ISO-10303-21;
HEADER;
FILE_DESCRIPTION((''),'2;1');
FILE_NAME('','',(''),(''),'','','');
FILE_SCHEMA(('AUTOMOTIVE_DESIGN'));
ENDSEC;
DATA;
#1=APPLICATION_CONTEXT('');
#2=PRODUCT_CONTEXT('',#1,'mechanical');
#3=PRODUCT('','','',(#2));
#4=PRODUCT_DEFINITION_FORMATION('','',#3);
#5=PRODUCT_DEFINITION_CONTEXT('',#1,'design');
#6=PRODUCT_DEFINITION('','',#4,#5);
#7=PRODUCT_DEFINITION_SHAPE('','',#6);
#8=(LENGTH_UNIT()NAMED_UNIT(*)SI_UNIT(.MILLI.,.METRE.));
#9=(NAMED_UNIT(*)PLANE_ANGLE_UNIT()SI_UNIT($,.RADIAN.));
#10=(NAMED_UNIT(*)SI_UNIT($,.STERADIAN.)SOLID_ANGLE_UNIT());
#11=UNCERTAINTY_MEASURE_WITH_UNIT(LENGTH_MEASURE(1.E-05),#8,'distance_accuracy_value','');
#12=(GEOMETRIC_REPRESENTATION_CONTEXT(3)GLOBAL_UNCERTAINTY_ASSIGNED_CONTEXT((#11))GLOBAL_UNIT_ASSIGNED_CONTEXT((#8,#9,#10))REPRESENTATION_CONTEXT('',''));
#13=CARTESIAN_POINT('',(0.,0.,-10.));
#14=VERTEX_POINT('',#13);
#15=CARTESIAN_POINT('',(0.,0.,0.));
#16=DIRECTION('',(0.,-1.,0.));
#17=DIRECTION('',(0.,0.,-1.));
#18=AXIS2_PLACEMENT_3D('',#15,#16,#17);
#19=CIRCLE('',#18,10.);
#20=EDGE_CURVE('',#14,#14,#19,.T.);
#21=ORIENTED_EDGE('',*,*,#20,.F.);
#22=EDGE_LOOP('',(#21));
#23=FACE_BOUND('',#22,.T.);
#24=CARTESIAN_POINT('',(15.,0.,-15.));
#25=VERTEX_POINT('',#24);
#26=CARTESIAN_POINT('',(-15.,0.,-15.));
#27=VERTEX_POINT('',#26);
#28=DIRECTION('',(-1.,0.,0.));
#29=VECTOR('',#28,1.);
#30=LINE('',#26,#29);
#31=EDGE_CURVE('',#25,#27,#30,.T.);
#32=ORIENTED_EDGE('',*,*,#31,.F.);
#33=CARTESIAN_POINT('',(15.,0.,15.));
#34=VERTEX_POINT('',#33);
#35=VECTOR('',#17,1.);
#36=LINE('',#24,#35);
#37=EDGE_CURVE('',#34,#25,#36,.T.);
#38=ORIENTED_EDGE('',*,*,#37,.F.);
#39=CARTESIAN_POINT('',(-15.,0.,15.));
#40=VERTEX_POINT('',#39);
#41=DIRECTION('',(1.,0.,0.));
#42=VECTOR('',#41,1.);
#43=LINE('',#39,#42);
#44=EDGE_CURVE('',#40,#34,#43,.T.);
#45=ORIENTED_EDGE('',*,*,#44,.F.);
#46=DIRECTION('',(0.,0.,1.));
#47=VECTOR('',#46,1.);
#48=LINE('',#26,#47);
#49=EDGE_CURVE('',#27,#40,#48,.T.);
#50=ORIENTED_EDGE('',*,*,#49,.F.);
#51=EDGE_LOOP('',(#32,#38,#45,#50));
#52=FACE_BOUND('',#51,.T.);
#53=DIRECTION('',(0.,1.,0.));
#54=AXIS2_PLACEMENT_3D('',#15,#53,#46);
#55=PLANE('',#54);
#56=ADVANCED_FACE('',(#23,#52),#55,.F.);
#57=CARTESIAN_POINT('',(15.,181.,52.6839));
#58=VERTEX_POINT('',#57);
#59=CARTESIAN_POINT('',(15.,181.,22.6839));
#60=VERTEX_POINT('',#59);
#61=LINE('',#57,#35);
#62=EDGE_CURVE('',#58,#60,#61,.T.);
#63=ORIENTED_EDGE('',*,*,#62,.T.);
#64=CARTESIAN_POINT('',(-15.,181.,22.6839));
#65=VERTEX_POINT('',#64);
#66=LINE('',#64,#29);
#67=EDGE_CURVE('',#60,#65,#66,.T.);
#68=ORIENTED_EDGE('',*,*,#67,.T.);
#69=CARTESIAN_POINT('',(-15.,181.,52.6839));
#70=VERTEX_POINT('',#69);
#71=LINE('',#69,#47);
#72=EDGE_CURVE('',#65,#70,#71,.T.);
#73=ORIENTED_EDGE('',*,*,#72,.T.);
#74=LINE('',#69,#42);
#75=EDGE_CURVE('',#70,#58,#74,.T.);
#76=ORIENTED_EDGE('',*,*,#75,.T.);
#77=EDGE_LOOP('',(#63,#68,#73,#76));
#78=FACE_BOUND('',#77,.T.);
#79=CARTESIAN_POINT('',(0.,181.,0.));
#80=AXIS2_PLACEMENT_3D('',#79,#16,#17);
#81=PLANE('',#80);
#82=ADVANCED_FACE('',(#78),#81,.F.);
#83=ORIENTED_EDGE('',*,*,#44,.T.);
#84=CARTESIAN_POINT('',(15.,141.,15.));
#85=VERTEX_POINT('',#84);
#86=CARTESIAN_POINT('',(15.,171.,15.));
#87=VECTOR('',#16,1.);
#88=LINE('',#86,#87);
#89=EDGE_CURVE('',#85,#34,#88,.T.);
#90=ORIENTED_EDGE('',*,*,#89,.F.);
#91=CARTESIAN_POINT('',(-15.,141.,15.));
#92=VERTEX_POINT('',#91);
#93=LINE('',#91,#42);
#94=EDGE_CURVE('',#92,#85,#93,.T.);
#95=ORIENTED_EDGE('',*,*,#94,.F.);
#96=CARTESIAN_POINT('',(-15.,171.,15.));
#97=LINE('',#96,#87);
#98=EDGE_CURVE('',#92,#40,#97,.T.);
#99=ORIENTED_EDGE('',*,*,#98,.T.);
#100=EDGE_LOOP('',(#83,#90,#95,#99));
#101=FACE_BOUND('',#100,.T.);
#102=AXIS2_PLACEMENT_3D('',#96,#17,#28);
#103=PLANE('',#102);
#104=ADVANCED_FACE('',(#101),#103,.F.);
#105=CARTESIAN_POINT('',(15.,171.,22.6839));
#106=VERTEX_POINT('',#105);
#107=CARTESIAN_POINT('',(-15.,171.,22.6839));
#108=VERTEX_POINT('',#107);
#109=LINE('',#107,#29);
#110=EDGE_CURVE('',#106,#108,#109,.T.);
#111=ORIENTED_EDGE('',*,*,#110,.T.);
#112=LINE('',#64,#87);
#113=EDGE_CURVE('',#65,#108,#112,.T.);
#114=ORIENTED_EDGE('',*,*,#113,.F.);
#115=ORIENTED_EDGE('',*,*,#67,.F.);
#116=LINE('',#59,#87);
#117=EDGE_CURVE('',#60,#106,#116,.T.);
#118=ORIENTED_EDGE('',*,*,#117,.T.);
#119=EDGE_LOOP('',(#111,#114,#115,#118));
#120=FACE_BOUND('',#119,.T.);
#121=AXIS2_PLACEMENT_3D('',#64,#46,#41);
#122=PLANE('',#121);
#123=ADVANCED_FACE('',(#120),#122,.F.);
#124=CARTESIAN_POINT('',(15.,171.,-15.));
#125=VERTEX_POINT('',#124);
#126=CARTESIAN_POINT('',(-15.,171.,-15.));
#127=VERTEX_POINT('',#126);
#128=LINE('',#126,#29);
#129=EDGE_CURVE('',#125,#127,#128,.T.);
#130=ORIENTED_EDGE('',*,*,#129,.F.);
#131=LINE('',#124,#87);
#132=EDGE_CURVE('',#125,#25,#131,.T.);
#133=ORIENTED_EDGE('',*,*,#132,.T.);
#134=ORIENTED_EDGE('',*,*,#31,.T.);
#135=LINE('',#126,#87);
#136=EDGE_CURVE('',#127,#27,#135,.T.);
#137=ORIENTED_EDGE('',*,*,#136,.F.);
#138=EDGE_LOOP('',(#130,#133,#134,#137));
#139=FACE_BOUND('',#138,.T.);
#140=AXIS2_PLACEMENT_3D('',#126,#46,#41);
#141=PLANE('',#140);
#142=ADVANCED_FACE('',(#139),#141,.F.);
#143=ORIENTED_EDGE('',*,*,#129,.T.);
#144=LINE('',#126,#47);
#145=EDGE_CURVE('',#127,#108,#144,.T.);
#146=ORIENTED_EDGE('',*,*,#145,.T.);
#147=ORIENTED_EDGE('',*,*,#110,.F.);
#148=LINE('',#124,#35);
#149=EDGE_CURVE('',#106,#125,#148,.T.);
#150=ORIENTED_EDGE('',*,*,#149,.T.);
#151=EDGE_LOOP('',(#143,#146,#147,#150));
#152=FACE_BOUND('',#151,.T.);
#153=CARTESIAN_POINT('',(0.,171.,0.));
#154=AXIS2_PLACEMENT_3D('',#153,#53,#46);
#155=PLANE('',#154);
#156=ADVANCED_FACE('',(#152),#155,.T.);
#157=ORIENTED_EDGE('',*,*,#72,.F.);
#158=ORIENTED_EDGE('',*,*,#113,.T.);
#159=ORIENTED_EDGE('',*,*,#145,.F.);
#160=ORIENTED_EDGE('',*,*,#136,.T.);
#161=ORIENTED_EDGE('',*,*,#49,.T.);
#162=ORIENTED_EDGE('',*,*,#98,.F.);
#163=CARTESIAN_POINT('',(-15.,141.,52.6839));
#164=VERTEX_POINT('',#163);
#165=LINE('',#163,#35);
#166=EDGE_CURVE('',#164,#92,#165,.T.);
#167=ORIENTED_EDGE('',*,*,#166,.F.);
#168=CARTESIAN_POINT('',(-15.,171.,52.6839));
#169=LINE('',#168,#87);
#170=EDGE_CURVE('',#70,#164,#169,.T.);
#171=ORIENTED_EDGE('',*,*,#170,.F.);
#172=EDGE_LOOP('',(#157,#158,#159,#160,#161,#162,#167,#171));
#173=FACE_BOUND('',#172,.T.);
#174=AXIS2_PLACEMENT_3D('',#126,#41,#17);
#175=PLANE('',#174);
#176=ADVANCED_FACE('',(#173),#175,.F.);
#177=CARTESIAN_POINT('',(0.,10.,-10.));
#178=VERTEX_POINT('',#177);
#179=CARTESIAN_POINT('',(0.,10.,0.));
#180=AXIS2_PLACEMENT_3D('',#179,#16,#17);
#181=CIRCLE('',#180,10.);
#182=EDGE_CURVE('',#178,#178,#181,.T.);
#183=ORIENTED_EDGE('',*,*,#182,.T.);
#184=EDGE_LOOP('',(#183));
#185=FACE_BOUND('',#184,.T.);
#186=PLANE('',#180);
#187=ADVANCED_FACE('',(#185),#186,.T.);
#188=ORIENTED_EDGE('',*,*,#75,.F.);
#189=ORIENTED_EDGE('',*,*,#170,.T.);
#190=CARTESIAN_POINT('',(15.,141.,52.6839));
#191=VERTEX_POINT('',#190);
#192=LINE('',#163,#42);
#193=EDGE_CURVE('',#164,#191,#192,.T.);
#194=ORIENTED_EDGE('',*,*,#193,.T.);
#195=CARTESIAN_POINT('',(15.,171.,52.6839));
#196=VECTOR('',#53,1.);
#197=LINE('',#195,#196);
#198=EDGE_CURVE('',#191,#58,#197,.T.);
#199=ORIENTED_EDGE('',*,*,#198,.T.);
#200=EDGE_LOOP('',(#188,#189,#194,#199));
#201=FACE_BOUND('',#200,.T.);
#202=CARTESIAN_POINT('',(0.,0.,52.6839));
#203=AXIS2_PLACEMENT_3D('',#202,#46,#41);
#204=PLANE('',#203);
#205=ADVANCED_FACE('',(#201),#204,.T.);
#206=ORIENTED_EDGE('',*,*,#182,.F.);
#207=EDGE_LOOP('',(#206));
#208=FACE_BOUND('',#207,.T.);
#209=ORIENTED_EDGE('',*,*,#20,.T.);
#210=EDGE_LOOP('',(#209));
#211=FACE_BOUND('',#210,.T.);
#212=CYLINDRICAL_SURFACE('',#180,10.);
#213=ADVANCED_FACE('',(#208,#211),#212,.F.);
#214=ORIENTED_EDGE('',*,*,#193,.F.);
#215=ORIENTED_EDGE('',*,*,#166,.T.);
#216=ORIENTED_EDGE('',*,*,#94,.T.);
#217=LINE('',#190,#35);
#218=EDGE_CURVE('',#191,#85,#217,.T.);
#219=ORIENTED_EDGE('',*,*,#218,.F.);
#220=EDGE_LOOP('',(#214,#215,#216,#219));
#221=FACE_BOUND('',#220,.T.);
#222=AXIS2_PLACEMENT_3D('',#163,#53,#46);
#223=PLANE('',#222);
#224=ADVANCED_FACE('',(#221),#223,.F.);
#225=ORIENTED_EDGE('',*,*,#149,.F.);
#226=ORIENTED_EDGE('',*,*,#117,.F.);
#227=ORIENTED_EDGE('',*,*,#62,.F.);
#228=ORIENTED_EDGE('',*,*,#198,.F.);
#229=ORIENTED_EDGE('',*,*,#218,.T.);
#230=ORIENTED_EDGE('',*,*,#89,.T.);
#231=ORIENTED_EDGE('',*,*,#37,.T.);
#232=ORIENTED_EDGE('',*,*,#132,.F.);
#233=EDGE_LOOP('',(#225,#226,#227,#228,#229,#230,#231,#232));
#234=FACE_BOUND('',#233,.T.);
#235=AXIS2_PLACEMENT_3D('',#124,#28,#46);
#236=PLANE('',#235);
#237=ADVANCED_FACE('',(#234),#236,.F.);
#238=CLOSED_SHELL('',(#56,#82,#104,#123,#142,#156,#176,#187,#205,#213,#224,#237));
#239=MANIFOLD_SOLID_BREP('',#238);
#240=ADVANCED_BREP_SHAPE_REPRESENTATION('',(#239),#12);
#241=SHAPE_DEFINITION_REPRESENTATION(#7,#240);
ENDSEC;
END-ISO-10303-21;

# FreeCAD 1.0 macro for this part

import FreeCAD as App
import Part
import Sketcher
Q = App.Units.Quantity


def add_polygon(sketch, points):
    """Adds a closed chain of lines whose ends are joined by coincident constraints."""
    first, n = sketch.GeometryCount, len(points)
    for a, b in zip(points, points[1:] + points[:1]):
        sketch.addGeometry(Part.LineSegment(App.Vector(*a, 0), App.Vector(*b, 0)), False)
    for i in range(n):
        sketch.addConstraint(Sketcher.Constraint("Coincident", first + i, 2, first + (i + 1) % n, 1))

doc = App.newDocument("Part")
params = doc.addObject("Spreadsheet::Sheet", "Params")
for row, (alias, value) in enumerate([
    ("sketch1_width", "30 mm"),
    ("pad1_length", "171 mm"),
    ("sketch2_diameter", "20 mm"),
    ("pocket1_length", "10 mm"),
    ("sketch3_width", "30 mm"),
    ("pad2_length", "37.6839 mm"),
    ("sketch4_width", "30 mm"),
    ("pad3_length", "10 mm"),
], start=1):
    params.set(f"A{row}", alias)
    params.set(f"B{row}", "=" + value)
    params.setAlias(f"B{row}", alias)

body = doc.addObject("PartDesign::Body", "Body")

sketch1 = doc.addObject("Sketcher::SketchObject", "Sketch")
body.addObject(sketch1)
sketch1.AttachmentSupport = (doc.XZ_Plane, [""])
sketch1.MapMode = "FlatFace"
add_polygon(sketch1, [(-15, -15), (-15, 15), (15, 15), (15, -15)])
sketch1.addConstraint(Sketcher.Constraint("Vertical", 0))
sketch1.addConstraint(Sketcher.Constraint("Horizontal", 1))
sketch1.addConstraint(Sketcher.Constraint("Vertical", 2))
sketch1.addConstraint(Sketcher.Constraint("Horizontal", 3))
sketch1.addConstraint(Sketcher.Constraint("Symmetric", 0, 2, 2, 2, -1, 1))
sketch1.addConstraint(Sketcher.Constraint("Equal", 3, 0))
sketch1.addConstraint(Sketcher.Constraint("DistanceX", 1, 1, 1, 2, Q("30 mm")))
sketch1.setExpression("Constraints[10]", "Params.sketch1_width")
pad1 = doc.addObject("PartDesign::Pad", "Pad")
body.addObject(pad1)
pad1.Profile = sketch1
pad1.setExpression("Length", "Params.pad1_length")
pad1.Reversed = True

sketch2 = doc.addObject("Sketcher::SketchObject", "Sketch001")
body.addObject(sketch2)
sketch2.AttachmentSupport = (doc.XZ_Plane, [""])
sketch2.MapMode = "FlatFace"
sketch2.addGeometry(Part.Circle(App.Vector(0, 0, 0), App.Vector(0, 0, 1), 10), False)
sketch2.addConstraint(Sketcher.Constraint("Coincident", 0, 3, -1, 1))
sketch2.addConstraint(Sketcher.Constraint("Diameter", 0, Q("20 mm")))
sketch2.setExpression("Constraints[1]", "Params.sketch2_diameter")
pocket1 = doc.addObject("PartDesign::Pocket", "Pocket")
body.addObject(pocket1)
pocket1.Profile = sketch2
pocket1.setExpression("Length", "Params.pocket1_length")

sketch3 = doc.addObject("Sketcher::SketchObject", "Sketch002")
body.addObject(sketch3)
sketch3.AttachmentSupport = (doc.XY_Plane, [""])
sketch3.MapMode = "FlatFace"
sketch3.AttachmentOffset = App.Placement(App.Vector(0, 0, 15), App.Rotation())
add_polygon(sketch3, [(-15, 171), (-15, 141), (15, 141), (15, 171)])
sketch3.addConstraint(Sketcher.Constraint("Vertical", 0))
sketch3.addConstraint(Sketcher.Constraint("Horizontal", 1))
sketch3.addConstraint(Sketcher.Constraint("Vertical", 2))
sketch3.addConstraint(Sketcher.Constraint("Horizontal", 3))
sketch3.addConstraint(Sketcher.Constraint("Equal", 3, 0))
sketch3.addConstraint(Sketcher.Constraint("DistanceX", 1, 1, 1, 2, Q("30 mm")))
sketch3.addConstraint(Sketcher.Constraint("DistanceX", 0, 2, -1, 1, Q("15 mm")))
sketch3.addConstraint(Sketcher.Constraint("DistanceY", -1, 1, 0, 2, Q("141 mm")))
sketch3.setExpression("Constraints[9]", "Params.sketch3_width")
pad2 = doc.addObject("PartDesign::Pad", "Pad001")
body.addObject(pad2)
pad2.Profile = sketch3
pad2.setExpression("Length", "Params.pad2_length")

sketch4 = doc.addObject("Sketcher::SketchObject", "Sketch003")
body.addObject(sketch4)
sketch4.AttachmentSupport = (doc.XZ_Plane, [""])
sketch4.MapMode = "FlatFace"
sketch4.AttachmentOffset = App.Placement(App.Vector(0, 0, -171), App.Rotation())
add_polygon(sketch4, [(-15, 23), (-15, 53), (15, 53), (15, 23)])
sketch4.addConstraint(Sketcher.Constraint("Vertical", 0))
sketch4.addConstraint(Sketcher.Constraint("Horizontal", 1))
sketch4.addConstraint(Sketcher.Constraint("Vertical", 2))
sketch4.addConstraint(Sketcher.Constraint("Horizontal", 3))
sketch4.addConstraint(Sketcher.Constraint("Equal", 3, 0))
sketch4.addConstraint(Sketcher.Constraint("DistanceX", 1, 1, 1, 2, Q("30 mm")))
sketch4.addConstraint(Sketcher.Constraint("DistanceX", 0, 2, -1, 1, Q("15 mm")))
sketch4.addConstraint(Sketcher.Constraint("DistanceY", -1, 1, 0, 2, Q("52.6839 mm")))
sketch4.setExpression("Constraints[9]", "Params.sketch4_width")
pad3 = doc.addObject("PartDesign::Pad", "Pad002")
body.addObject(pad3)
pad3.Profile = sketch4
pad3.setExpression("Length", "Params.pad3_length")
pad3.Reversed = True

doc.recompute()
